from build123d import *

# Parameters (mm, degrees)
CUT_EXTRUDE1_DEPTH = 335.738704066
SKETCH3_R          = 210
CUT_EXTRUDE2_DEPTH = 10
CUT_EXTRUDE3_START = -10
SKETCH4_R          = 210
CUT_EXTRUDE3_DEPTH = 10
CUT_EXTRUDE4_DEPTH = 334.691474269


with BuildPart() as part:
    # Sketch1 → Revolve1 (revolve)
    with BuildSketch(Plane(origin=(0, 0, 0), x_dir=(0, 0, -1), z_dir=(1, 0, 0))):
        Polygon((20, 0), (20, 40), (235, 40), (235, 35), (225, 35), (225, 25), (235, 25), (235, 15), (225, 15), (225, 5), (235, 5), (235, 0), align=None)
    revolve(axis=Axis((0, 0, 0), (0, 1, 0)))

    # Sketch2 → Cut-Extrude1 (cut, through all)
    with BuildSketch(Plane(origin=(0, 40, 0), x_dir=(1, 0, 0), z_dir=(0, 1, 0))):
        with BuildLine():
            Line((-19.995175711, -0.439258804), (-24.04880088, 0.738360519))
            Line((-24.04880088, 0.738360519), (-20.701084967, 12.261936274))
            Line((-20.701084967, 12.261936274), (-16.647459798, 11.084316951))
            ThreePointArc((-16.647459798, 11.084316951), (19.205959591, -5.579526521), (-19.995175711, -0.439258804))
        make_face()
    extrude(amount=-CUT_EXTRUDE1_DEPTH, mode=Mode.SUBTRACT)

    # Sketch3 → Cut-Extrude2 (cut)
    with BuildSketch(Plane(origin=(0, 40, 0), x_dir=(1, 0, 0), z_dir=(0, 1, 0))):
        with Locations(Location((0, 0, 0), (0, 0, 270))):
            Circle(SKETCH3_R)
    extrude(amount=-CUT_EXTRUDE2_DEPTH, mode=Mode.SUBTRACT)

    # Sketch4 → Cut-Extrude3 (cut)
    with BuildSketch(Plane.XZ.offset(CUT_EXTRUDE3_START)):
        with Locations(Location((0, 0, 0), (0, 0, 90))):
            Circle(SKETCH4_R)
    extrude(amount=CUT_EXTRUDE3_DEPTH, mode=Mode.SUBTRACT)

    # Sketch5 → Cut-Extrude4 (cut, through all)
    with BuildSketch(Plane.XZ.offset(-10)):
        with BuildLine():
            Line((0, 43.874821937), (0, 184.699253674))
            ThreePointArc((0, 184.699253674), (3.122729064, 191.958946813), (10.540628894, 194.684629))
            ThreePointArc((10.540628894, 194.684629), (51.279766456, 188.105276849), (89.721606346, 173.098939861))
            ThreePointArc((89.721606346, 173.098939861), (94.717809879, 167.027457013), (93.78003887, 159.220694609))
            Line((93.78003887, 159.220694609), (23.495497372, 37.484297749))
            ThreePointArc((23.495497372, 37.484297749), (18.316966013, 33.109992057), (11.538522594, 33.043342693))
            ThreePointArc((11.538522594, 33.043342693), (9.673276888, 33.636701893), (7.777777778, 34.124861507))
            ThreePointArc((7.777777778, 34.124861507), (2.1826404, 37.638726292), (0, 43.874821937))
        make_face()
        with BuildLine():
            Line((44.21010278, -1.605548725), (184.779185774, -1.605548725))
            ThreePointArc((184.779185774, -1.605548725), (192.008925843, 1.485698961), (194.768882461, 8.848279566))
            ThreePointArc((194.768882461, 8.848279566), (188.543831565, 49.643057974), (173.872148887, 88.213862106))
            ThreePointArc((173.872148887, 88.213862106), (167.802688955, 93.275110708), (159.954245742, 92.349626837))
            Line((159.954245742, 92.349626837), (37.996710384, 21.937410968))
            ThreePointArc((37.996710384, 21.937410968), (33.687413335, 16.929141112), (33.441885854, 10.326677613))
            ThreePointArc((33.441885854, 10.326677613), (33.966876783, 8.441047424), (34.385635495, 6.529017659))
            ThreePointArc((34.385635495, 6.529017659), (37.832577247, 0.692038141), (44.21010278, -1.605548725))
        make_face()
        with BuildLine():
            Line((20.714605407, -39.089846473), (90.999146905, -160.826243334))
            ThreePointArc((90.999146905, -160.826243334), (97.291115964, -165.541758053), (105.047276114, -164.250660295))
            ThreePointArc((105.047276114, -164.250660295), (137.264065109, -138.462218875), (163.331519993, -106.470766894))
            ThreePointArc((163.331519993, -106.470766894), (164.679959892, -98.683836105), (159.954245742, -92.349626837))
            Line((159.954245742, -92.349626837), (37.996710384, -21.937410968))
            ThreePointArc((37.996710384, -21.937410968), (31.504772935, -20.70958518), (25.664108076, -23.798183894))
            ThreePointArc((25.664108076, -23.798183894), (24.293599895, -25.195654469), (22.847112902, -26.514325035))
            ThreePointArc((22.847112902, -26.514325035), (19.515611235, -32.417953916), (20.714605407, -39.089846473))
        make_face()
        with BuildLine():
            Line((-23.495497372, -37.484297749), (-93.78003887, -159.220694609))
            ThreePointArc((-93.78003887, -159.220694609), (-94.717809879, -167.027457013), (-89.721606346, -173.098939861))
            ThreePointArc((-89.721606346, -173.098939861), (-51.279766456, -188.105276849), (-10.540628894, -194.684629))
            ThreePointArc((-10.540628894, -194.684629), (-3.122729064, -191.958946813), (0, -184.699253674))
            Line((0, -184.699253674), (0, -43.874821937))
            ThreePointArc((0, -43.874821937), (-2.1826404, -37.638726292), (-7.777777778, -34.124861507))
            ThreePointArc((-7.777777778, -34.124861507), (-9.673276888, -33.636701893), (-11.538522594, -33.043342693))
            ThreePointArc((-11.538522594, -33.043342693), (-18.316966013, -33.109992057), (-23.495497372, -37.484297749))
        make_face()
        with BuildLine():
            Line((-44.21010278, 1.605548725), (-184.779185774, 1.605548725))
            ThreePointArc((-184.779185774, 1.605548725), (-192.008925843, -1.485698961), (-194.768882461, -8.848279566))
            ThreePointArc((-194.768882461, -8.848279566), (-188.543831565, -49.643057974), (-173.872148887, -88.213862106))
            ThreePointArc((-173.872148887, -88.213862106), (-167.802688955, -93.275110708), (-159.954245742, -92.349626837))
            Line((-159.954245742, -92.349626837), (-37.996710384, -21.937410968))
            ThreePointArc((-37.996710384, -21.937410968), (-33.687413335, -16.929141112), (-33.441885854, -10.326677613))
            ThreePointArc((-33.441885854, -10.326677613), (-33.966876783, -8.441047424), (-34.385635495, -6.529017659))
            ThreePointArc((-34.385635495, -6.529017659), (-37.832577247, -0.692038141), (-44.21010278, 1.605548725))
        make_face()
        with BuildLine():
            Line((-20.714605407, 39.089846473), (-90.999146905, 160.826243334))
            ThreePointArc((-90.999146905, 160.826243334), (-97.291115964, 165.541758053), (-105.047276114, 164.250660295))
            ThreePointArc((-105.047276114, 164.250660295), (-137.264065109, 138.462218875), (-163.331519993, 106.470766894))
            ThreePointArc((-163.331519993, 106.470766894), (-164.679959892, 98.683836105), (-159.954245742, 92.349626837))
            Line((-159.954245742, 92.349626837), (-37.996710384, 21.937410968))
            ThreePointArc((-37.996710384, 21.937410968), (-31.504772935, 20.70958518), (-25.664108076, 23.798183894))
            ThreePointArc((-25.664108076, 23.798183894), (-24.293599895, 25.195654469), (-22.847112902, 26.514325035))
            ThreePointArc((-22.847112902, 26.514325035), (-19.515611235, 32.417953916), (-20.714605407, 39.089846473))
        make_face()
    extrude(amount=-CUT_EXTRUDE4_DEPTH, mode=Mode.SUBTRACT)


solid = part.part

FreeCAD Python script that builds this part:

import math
import FreeCAD as App
import Part
import Sketcher
from FreeCAD import Vector
Q = App.Units.Quantity

doc = App.newDocument("Part")
params = doc.addObject("Spreadsheet::Sheet", "Params")
for row, (alias, value) in enumerate([
    ("sketch1_width", "40 mm"),
    ("sketch1_width2", "5 mm"),
    ("sketch1_height", "215 mm"),
    ("revolution_angle", "360 deg"),
    ("sketch2_radius", "20 mm"),
    ("sketch2_length", "12 mm"),
    ("sketch3_diameter", "420 mm"),
    ("pocket2_length", "10 mm"),
    ("sketch4_diameter", "420 mm"),
    ("pocket3_length", "10 mm"),
    ("sketch5_radius", "10 mm"),
    ("sketch5_radius2", "35 mm"),
], start=1):
    params.set(f"A{row}", alias)
    params.set(f"B{row}", "=" + value)
    params.setAlias(f"B{row}", alias)

body = doc.addObject("PartDesign::Body", "Body")

# Sketch on YZ plane
sketch1 = body.newObject("Sketcher::SketchObject", "Sketch")
sketch1.AttachmentSupport = (doc.getObject("YZ_Plane"), [""])
sketch1.MapMode = "FlatFace"
sketch1.addGeometry([
    Part.LineSegment(Vector(40, -20, 0), Vector(0, -20, 0)),  # 0
    Part.LineSegment(Vector(0, -20, 0), Vector(0, -235, 0)),  # 1
    Part.LineSegment(Vector(0, -235, 0), Vector(5, -235, 0)),  # 2
    Part.LineSegment(Vector(5, -235, 0), Vector(5, -225, 0)),  # 3
    Part.LineSegment(Vector(5, -225, 0), Vector(15, -225, 0)),  # 4
    Part.LineSegment(Vector(15, -225, 0), Vector(15, -235, 0)),  # 5
    Part.LineSegment(Vector(15, -235, 0), Vector(25, -235, 0)),  # 6
    Part.LineSegment(Vector(25, -235, 0), Vector(25, -225, 0)),  # 7
    Part.LineSegment(Vector(25, -225, 0), Vector(35, -225, 0)),  # 8
    Part.LineSegment(Vector(35, -225, 0), Vector(35, -235, 0)),  # 9
    Part.LineSegment(Vector(35, -235, 0), Vector(40, -235, 0)),  # 10
    Part.LineSegment(Vector(40, -235, 0), Vector(40, -20, 0)),  # 11
], False)
sketch1.addConstraint([
    Sketcher.Constraint("Coincident", 0, 2, 1, 1),
    Sketcher.Constraint("Coincident", 1, 2, 2, 1),
    Sketcher.Constraint("Coincident", 2, 2, 3, 1),
    Sketcher.Constraint("Coincident", 3, 2, 4, 1),
    Sketcher.Constraint("Coincident", 4, 2, 5, 1),
    Sketcher.Constraint("Coincident", 5, 2, 6, 1),
    Sketcher.Constraint("Coincident", 6, 2, 7, 1),
    Sketcher.Constraint("Coincident", 7, 2, 8, 1),
    Sketcher.Constraint("Coincident", 8, 2, 9, 1),
    Sketcher.Constraint("Coincident", 9, 2, 10, 1),
    Sketcher.Constraint("Coincident", 10, 2, 11, 1),
    Sketcher.Constraint("Coincident", 11, 2, 0, 1),
    Sketcher.Constraint("Horizontal", 0),
    Sketcher.Constraint("Vertical", 1),
    Sketcher.Constraint("Horizontal", 2),
    Sketcher.Constraint("Vertical", 3),
    Sketcher.Constraint("Horizontal", 4),
    Sketcher.Constraint("Vertical", 5),
    Sketcher.Constraint("Horizontal", 6),
    Sketcher.Constraint("Vertical", 7),
    Sketcher.Constraint("Horizontal", 8),
    Sketcher.Constraint("Vertical", 9),
    Sketcher.Constraint("Horizontal", 10),
    Sketcher.Constraint("Vertical", 11),
    Sketcher.Constraint("PointOnObject", 0, 2, -2),
    Sketcher.Constraint("Horizontal", 2, 2, 5, 2),
    Sketcher.Constraint("Horizontal", 4, 2, 7, 2),
    Sketcher.Constraint("Horizontal", 6, 2, 9, 2),
    Sketcher.Constraint("Equal", 4, 6),
    Sketcher.Constraint("Equal", 6, 8),
    Sketcher.Constraint("Equal", 2, 10),
    Sketcher.Constraint("Equal", 8, 3),
    Sketcher.Constraint("DistanceX", 0, 2, 0, 1, 40.0),
    Sketcher.Constraint("DistanceX", 2, 1, 2, 2, 5.0),
    Sketcher.Constraint("DistanceY", 1, 2, 1, 1, 215.0),
    Sketcher.Constraint("DistanceY", 0, 2, -1, 1, 20.0),
])
sketch1.setExpression("Constraints[32]", "Params.sketch1_width")
sketch1.setExpression("Constraints[33]", "Params.sketch1_width2")
sketch1.setExpression("Constraints[34]", "Params.sketch1_height")
revolution = body.newObject("PartDesign::Revolution", "Revolution")
revolution.Profile = sketch1
revolution.ReferenceAxis = (sketch1, ["H_Axis"])
revolution.setExpression("Angle", "Params.revolution_angle")

# Sketch on XZ plane
sketch2 = body.newObject("Sketcher::SketchObject", "Sketch001")
sketch2.AttachmentSupport = (doc.getObject("XZ_Plane"), [""])
sketch2.MapMode = "FlatFace"
sketch2.AttachmentOffset = App.Placement(Vector(0, 0, -40), App.Rotation())
sketch2.addGeometry([
    Part.LineSegment(Vector(-24, -0.7, 0), Vector(-20, 0.4, 0)),
    Part.ArcOfCircle(Part.Circle(Vector(0, 0, 0), Vector(0, 0, 1), 20), math.radians(-146), math.radians(179)),
    Part.LineSegment(Vector(-16.6, -11.1, 0), Vector(-20.7, -12.3, 0)),
    Part.LineSegment(Vector(-20.7, -12.3, 0), Vector(-24, -0.7, 0)),
], False)
sketch2.addConstraint([
    Sketcher.Constraint("Coincident", 0, 2, 1, 2),
    Sketcher.Constraint("Coincident", 1, 1, 2, 1),
    Sketcher.Constraint("Coincident", 2, 2, 3, 1),
    Sketcher.Constraint("Coincident", 3, 2, 0, 1),
    Sketcher.Constraint("Coincident", 1, 3, -1, 1),
    Sketcher.Constraint("Parallel", 0, 2),
    Sketcher.Constraint("Perpendicular", 2, 3),
    Sketcher.Constraint("Equal", 0, 2),
    Sketcher.Constraint("Radius", 1, 20.0),
    Sketcher.Constraint("Distance", 3, 12.0),
    Sketcher.Constraint("DistanceX", 3, 2, -1, 1, 24.048801),
    Sketcher.Constraint("DistanceY", -1, 1, 0, 2, 0.439259),
])
sketch2.setExpression("Constraints[8]", "Params.sketch2_radius")
sketch2.setExpression("Constraints[9]", "Params.sketch2_length")
pocket1 = body.newObject("PartDesign::Pocket", "Pocket")
pocket1.Profile = sketch2
pocket1.Type = "ThroughAll"
pocket1.Reversed = True

# Sketch on XZ plane
sketch3 = body.newObject("Sketcher::SketchObject", "Sketch002")
sketch3.AttachmentSupport = (doc.getObject("XZ_Plane"), [""])
sketch3.MapMode = "FlatFace"
sketch3.AttachmentOffset = App.Placement(Vector(0, 0, -40), App.Rotation())
sketch3.addGeometry(Part.Circle(Vector(0, 0, 0), Vector(0, 0, 1), 210), False)
sketch3.addConstraint([
    Sketcher.Constraint("Coincident", 0, 3, -1, 1),
    Sketcher.Constraint("Diameter", 0, 420.0),
])
sketch3.setExpression("Constraints[1]", "Params.sketch3_diameter")
pocket2 = body.newObject("PartDesign::Pocket", "Pocket001")
pocket2.Profile = sketch3
pocket2.setExpression("Length", "Params.pocket2_length")
pocket2.Reversed = True

# Sketch on XZ plane
sketch4 = body.newObject("Sketcher::SketchObject", "Sketch003")
sketch4.AttachmentSupport = (doc.getObject("XZ_Plane"), [""])
sketch4.MapMode = "FlatFace"
sketch4.AttachmentOffset = App.Placement(Vector(0, 0, -10), App.Rotation())
sketch4.addGeometry(Part.Circle(Vector(0, 0, 0), Vector(0, 0, 1), 210), False)
sketch4.addConstraint([
    Sketcher.Constraint("Coincident", 0, 3, -1, 1),
    Sketcher.Constraint("Diameter", 0, 420.0),
])
sketch4.setExpression("Constraints[1]", "Params.sketch4_diameter")
pocket3 = body.newObject("PartDesign::Pocket", "Pocket002")
pocket3.Profile = sketch4
pocket3.setExpression("Length", "Params.pocket3_length")
pocket3.Reversed = True

# Sketch on XZ plane
sketch5 = body.newObject("Sketcher::SketchObject", "Sketch004")
sketch5.AttachmentSupport = (doc.getObject("XZ_Plane"), [""])
sketch5.MapMode = "FlatFace"
sketch5.AttachmentOffset = App.Placement(Vector(0, 0, -10), App.Rotation())
sketch5.addGeometry([
    Part.LineSegment(Vector(0, 184.7, 0), Vector(0, 43.9, 0)),  # 0
    Part.ArcOfCircle(Part.Circle(Vector(10, 43.9, 0), Vector(0, 0, 1), 10), math.radians(180), math.radians(257)),  # 1
    Part.ArcOfCircle(Part.Circle(Vector(0, 0, 0), Vector(0, 0, 1), 35), math.radians(70.75), math.radians(77.16)),  # 2
    Part.ArcOfCircle(Part.Circle(Vector(14.8, 42.5, 0), Vector(0, 0, 1), 10), math.radians(-109), math.radians(-30)),  # 3
    Part.LineSegment(Vector(23.5, 37.5, 0), Vector(93.8, 159.2, 0)),  # 4
    Part.ArcOfCircle(Part.Circle(Vector(85.1, 164.2, 0), Vector(0, 0, 1), 10), math.radians(-30), math.radians(63)),  # 5
    Part.ArcOfCircle(Part.Circle(Vector(0, 0, 0), Vector(0, 0, 1), 195), math.radians(63), math.radians(87)),  # 6
    Part.ArcOfCircle(Part.Circle(Vector(10, 184.7, 0), Vector(0, 0, 1), 10), math.radians(87), math.radians(180)),  # 7
    Part.LineSegment(Vector(44.2, -1.6, 0), Vector(184.8, -1.6, 0)),  # 8
    Part.ArcOfCircle(Part.Circle(Vector(184.8, 8.4, 0), Vector(0, 0, 1), 10), math.radians(-90), math.radians(3)),  # 9
    Part.ArcOfCircle(Part.Circle(Vector(0, 0, 0), Vector(0, 0, 1), 195), math.radians(3), math.radians(27)),  # 10
    Part.ArcOfCircle(Part.Circle(Vector(165, 83.7, 0), Vector(0, 0, 1), 10), math.radians(27), math.radians(120)),  # 11
    Part.LineSegment(Vector(160, 92.3, 0), Vector(38, 21.9, 0)),  # 12
    Part.ArcOfCircle(Part.Circle(Vector(43, 13.3, 0), Vector(0, 0, 1), 10), math.radians(120), math.radians(197)),  # 13
    Part.ArcOfCircle(Part.Circle(Vector(0, 0, 0), Vector(0, 0, 1), 35), math.radians(10.75), math.radians(17.16)),  # 14
    Part.ArcOfCircle(Part.Circle(Vector(44.2, 8.4, 0), Vector(0, 0, 1), 10), math.radians(-169), math.radians(-90)),  # 15
    Part.LineSegment(Vector(20.7, -39.1, 0), Vector(91, -160.8, 0)),  # 16
    Part.ArcOfCircle(Part.Circle(Vector(99.7, -155.8, 0), Vector(0, 0, 1), 10), math.radians(-150), math.radians(-57)),  # 17
    Part.ArcOfCircle(Part.Circle(Vector(0, 0, 0), Vector(0, 0, 1), 195), math.radians(-57), math.radians(-33)),  # 18
    Part.ArcOfCircle(Part.Circle(Vector(155, -101, 0), Vector(0, 0, 1), 10), math.radians(-33), math.radians(60)),  # 19
    Part.LineSegment(Vector(160, -92.3, 0), Vector(38, -21.9, 0)),  # 20
    Part.ArcOfCircle(Part.Circle(Vector(33, -30.6, 0), Vector(0, 0, 1), 10), math.radians(60), math.radians(137)),  # 21
    Part.ArcOfCircle(Part.Circle(Vector(0, 0, 0), Vector(0, 0, 1), 35), math.radians(-49.25), math.radians(-42.84)),  # 22
    Part.ArcOfCircle(Part.Circle(Vector(29.4, -34.1, 0), Vector(0, 0, 1), 10), math.radians(131), math.radians(210)),  # 23
    Part.LineSegment(Vector(-23.5, -37.5, 0), Vector(-93.8, -159.2, 0)),  # 24
    Part.ArcOfCircle(Part.Circle(Vector(-85.1, -164.2, 0), Vector(0, 0, 1), 10), math.radians(150), math.radians(243)),  # 25
    Part.ArcOfCircle(Part.Circle(Vector(0, 0, 0), Vector(0, 0, 1), 195), math.radians(-117), math.radians(-93)),  # 26
    Part.ArcOfCircle(Part.Circle(Vector(-10, -184.7, 0), Vector(0, 0, 1), 10), math.radians(-93), math.radians(0)),  # 27
    Part.LineSegment(Vector(0, -184.7, 0), Vector(0, -43.9, 0)),  # 28
    Part.ArcOfCircle(Part.Circle(Vector(-10, -43.9, 0), Vector(0, 0, 1), 10), math.radians(0), math.radians(77)),  # 29
    Part.ArcOfCircle(Part.Circle(Vector(0, 0, 0), Vector(0, 0, 1), 35), math.radians(-109.25), math.radians(-102.84)),  # 30
    Part.ArcOfCircle(Part.Circle(Vector(-14.8, -42.5, 0), Vector(0, 0, 1), 10), math.radians(71), math.radians(150)),  # 31
    Part.LineSegment(Vector(-44.2, 1.6, 0), Vector(-184.8, 1.6, 0)),  # 32
    Part.ArcOfCircle(Part.Circle(Vector(-184.8, -8.4, 0), Vector(0, 0, 1), 10), math.radians(90), math.radians(183)),  # 33
    Part.ArcOfCircle(Part.Circle(Vector(0, 0, 0), Vector(0, 0, 1), 195), math.radians(-177), math.radians(-153)),  # 34
    Part.ArcOfCircle(Part.Circle(Vector(-165, -83.7, 0), Vector(0, 0, 1), 10), math.radians(-153), math.radians(-60)),  # 35
    Part.LineSegment(Vector(-160, -92.3, 0), Vector(-38, -21.9, 0)),  # 36
    Part.ArcOfCircle(Part.Circle(Vector(-43, -13.3, 0), Vector(0, 0, 1), 10), math.radians(-60), math.radians(17)),  # 37
    Part.ArcOfCircle(Part.Circle(Vector(0, 0, 0), Vector(0, 0, 1), 35), math.radians(-169.25), math.radians(-162.84)),  # 38
    Part.ArcOfCircle(Part.Circle(Vector(-44.2, -8.4, 0), Vector(0, 0, 1), 10), math.radians(11), math.radians(90)),  # 39
    Part.LineSegment(Vector(-20.7, 39.1, 0), Vector(-91, 160.8, 0)),  # 40
    Part.ArcOfCircle(Part.Circle(Vector(-99.7, 155.8, 0), Vector(0, 0, 1), 10), math.radians(30), math.radians(123)),  # 41
    Part.ArcOfCircle(Part.Circle(Vector(0, 0, 0), Vector(0, 0, 1), 195), math.radians(123), math.radians(147)),  # 42
    Part.ArcOfCircle(Part.Circle(Vector(-155, 101, 0), Vector(0, 0, 1), 10), math.radians(147), math.radians(240)),  # 43
    Part.LineSegment(Vector(-160, 92.3, 0), Vector(-38, 21.9, 0)),  # 44
    Part.ArcOfCircle(Part.Circle(Vector(-33, 30.6, 0), Vector(0, 0, 1), 10), math.radians(-120), math.radians(-43)),  # 45
    Part.ArcOfCircle(Part.Circle(Vector(0, 0, 0), Vector(0, 0, 1), 35), math.radians(130.75), math.radians(137.16)),  # 46
    Part.ArcOfCircle(Part.Circle(Vector(-29.4, 34.1, 0), Vector(0, 0, 1), 10), math.radians(-49), math.radians(30)),  # 47
], False)
sketch5.addConstraint([
    Sketcher.Constraint("Tangent", 0, 2, 1, 1),
    Sketcher.Constraint("Tangent", 1, 2, 2, 2),
    Sketcher.Constraint("Tangent", 2, 1, 3, 1),
    Sketcher.Constraint("Tangent", 3, 2, 4, 1),
    Sketcher.Constraint("Tangent", 4, 2, 5, 1),
    Sketcher.Constraint("Tangent", 5, 2, 6, 1),
    Sketcher.Constraint("Tangent", 6, 2, 7, 1),
    Sketcher.Constraint("Tangent", 7, 2, 0, 1),
    Sketcher.Constraint("Tangent", 8, 2, 9, 1),
    Sketcher.Constraint("Tangent", 9, 2, 10, 1),
    Sketcher.Constraint("Tangent", 10, 2, 11, 1),
    Sketcher.Constraint("Tangent", 11, 2, 12, 1),
    Sketcher.Constraint("Tangent", 12, 2, 13, 1),
    Sketcher.Constraint("Tangent", 13, 2, 14, 2),
    Sketcher.Constraint("Tangent", 14, 1, 15, 1),
    Sketcher.Constraint("Tangent", 15, 2, 8, 1),
    Sketcher.Constraint("Tangent", 16, 2, 17, 1),
    Sketcher.Constraint("Tangent", 17, 2, 18, 1),
    Sketcher.Constraint("Tangent", 18, 2, 19, 1),
    Sketcher.Constraint("Tangent", 19, 2, 20, 1),
    Sketcher.Constraint("Tangent", 20, 2, 21, 1),
    Sketcher.Constraint("Tangent", 21, 2, 22, 2),
    Sketcher.Constraint("Tangent", 22, 1, 23, 1),
    Sketcher.Constraint("Tangent", 23, 2, 16, 1),
    Sketcher.Constraint("Tangent", 24, 2, 25, 1),
    Sketcher.Constraint("Tangent", 25, 2, 26, 1),
    Sketcher.Constraint("Tangent", 26, 2, 27, 1),
    Sketcher.Constraint("Tangent", 27, 2, 28, 1),
    Sketcher.Constraint("Tangent", 28, 2, 29, 1),
    Sketcher.Constraint("Tangent", 29, 2, 30, 2),
    Sketcher.Constraint("Tangent", 30, 1, 31, 1),
    Sketcher.Constraint("Tangent", 31, 2, 24, 1),
    Sketcher.Constraint("Tangent", 32, 2, 33, 1),
    Sketcher.Constraint("Tangent", 33, 2, 34, 1),
    Sketcher.Constraint("Tangent", 34, 2, 35, 1),
    Sketcher.Constraint("Tangent", 35, 2, 36, 1),
    Sketcher.Constraint("Tangent", 36, 2, 37, 1),
    Sketcher.Constraint("Tangent", 37, 2, 38, 2),
    Sketcher.Constraint("Tangent", 38, 1, 39, 1),
    Sketcher.Constraint("Tangent", 39, 2, 32, 1),
    Sketcher.Constraint("Tangent", 40, 2, 41, 1),
    Sketcher.Constraint("Tangent", 41, 2, 42, 1),
    Sketcher.Constraint("Tangent", 42, 2, 43, 1),
    Sketcher.Constraint("Tangent", 43, 2, 44, 1),
    Sketcher.Constraint("Tangent", 44, 2, 45, 1),
    Sketcher.Constraint("Tangent", 45, 2, 46, 2),
    Sketcher.Constraint("Tangent", 46, 1, 47, 1),
    Sketcher.Constraint("Tangent", 47, 2, 40, 1),
    Sketcher.Constraint("Vertical", 0),
    Sketcher.Constraint("Horizontal", 8),
    Sketcher.Constraint("Vertical", 28),
    Sketcher.Constraint("Horizontal", 32),
    Sketcher.Constraint("Coincident", 2, 3, -1, 1),
    Sketcher.Constraint("Coincident", 6, 3, -1, 1),
    Sketcher.Constraint("Coincident", 10, 3, -1, 1),
    Sketcher.Constraint("Coincident", 14, 3, -1, 1),
    Sketcher.Constraint("Coincident", 18, 3, -1, 1),
    Sketcher.Constraint("Coincident", 22, 3, -1, 1),
    Sketcher.Constraint("Coincident", 26, 3, -1, 1),
    Sketcher.Constraint("Coincident", 30, 3, -1, 1),
    Sketcher.Constraint("Coincident", 34, 3, -1, 1),
    Sketcher.Constraint("Coincident", 38, 3, -1, 1),
    Sketcher.Constraint("Coincident", 42, 3, -1, 1),
    Sketcher.Constraint("Coincident", 46, 3, -1, 1),
    Sketcher.Constraint("Equal", 1, 3),
    Sketcher.Constraint("Equal", 3, 5),
    Sketcher.Constraint("Equal", 5, 7),
    Sketcher.Constraint("Equal", 7, 9),
    Sketcher.Constraint("Equal", 6, 10),
    Sketcher.Constraint("Equal", 9, 11),
    Sketcher.Constraint("Equal", 11, 13),
    Sketcher.Constraint("Equal", 2, 14),
    Sketcher.Constraint("Equal", 13, 15),
    Sketcher.Constraint("Equal", 15, 17),
    Sketcher.Constraint("Equal", 10, 18),
    Sketcher.Constraint("Equal", 17, 19),
    Sketcher.Constraint("Equal", 19, 21),
    Sketcher.Constraint("Equal", 14, 22),
    Sketcher.Constraint("Equal", 21, 23),
    Sketcher.Constraint("Equal", 23, 25),
    Sketcher.Constraint("Equal", 18, 26),
    Sketcher.Constraint("Equal", 25, 27),
    Sketcher.Constraint("Equal", 27, 29),
    Sketcher.Constraint("Equal", 22, 30),
    Sketcher.Constraint("Equal", 29, 31),
    Sketcher.Constraint("Equal", 31, 33),
    Sketcher.Constraint("Equal", 26, 34),
    Sketcher.Constraint("Equal", 33, 35),
    Sketcher.Constraint("Equal", 35, 37),
    Sketcher.Constraint("Equal", 30, 38),
    Sketcher.Constraint("Equal", 37, 39),
    Sketcher.Constraint("Equal", 39, 41),
    Sketcher.Constraint("Equal", 34, 42),
    Sketcher.Constraint("Equal", 41, 43),
    Sketcher.Constraint("Equal", 43, 45),
    Sketcher.Constraint("Equal", 38, 46),
    Sketcher.Constraint("Equal", 45, 47),
    Sketcher.Constraint("Symmetric", 4, 2, 24, 2, -1, 1),
    Sketcher.Constraint("Symmetric", 11, 2, 35, 2, -1, 1),
    Sketcher.Constraint("Symmetric", 16, 2, 40, 2, -1, 1),
    Sketcher.Constraint("Symmetric", 19, 2, 43, 2, -1, 1),
    Sketcher.Constraint("Symmetric", 19, 2, 35, 2, -2),
    Sketcher.Constraint("Symmetric", 7, 2, 27, 2, -1),
    Sketcher.Constraint("Perpendicular", 12, 16),
    Sketcher.Constraint("Perpendicular", 4, 20),
    Sketcher.Constraint("Horizontal", 20, 2, 36, 2),
    Sketcher.Constraint("Equal", 8, 32),
    Sketcher.Constraint("Equal", 4, 16),
    Sketcher.Constraint("Radius", 1, 10.0),
    Sketcher.Constraint("Radius", 2, 35.0),
    Sketcher.Constraint("Angle", 4, Q("60 deg")),
    Sketcher.Constraint("Radius", 6, 194.969766),
    Sketcher.Constraint("DistanceX", -1, 1, 17, 3, 99.659401),
    Sketcher.Constraint("DistanceX", 8, 1, 8, 2, 140.569083),
])
sketch5.setExpression("Constraints[108]", "Params.sketch5_radius")
sketch5.setExpression("Constraints[109]", "Params.sketch5_radius2")
pocket4 = body.newObject("PartDesign::Pocket", "Pocket003")
pocket4.Profile = sketch5
pocket4.Type = "ThroughAll"

doc.recompute()
